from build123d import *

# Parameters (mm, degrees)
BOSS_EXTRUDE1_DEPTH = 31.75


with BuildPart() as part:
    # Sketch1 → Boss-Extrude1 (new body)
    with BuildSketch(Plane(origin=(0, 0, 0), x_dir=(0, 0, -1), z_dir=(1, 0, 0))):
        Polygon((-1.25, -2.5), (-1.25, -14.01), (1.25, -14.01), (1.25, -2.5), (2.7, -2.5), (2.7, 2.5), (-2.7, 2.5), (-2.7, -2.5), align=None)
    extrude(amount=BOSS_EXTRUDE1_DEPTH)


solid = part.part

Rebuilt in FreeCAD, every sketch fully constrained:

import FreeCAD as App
import Part
import Sketcher

V = App.Vector

doc = App.newDocument("Part")
params = doc.addObject("Spreadsheet::Sheet", "Params")
for row, (alias, value) in enumerate([
    ("sketch1_width", "5 mm"),
    ("sketch1_height", "2.5 mm"),
    ("sketch1_height2", "5.4 mm"),
    ("sketch1_width2", "11.51 mm"),
    ("pad1_length", "31.75 mm"),
], start=1):
    params.set(f"A{row}", alias)
    params.set(f"B{row}", "=" + value)
    params.setAlias(f"B{row}", alias)

body = doc.addObject("PartDesign::Body", "Body")

sketch1 = body.newObject("Sketcher::SketchObject", "Sketch")
sketch1.AttachmentSupport = (doc.getObject("YZ_Plane"), [""])
sketch1.MapMode = "FlatFace"
sketch1.addGeometry([
    Part.LineSegment(V(-2.5, 1.2, 0), V(-14, 1.2, 0)),
    Part.LineSegment(V(-14, 1.2, 0), V(-14, -1.2, 0)),
    Part.LineSegment(V(-14, -1.2, 0), V(-2.5, -1.2, 0)),
    Part.LineSegment(V(-2.5, -1.2, 0), V(-2.5, -2.7, 0)),
    Part.LineSegment(V(-2.5, -2.7, 0), V(2.5, -2.7, 0)),
    Part.LineSegment(V(2.5, -2.7, 0), V(2.5, 2.7, 0)),
    Part.LineSegment(V(2.5, 2.7, 0), V(-2.5, 2.7, 0)),
    Part.LineSegment(V(-2.5, 2.7, 0), V(-2.5, 1.2, 0)),
], False)
sketch1.addConstraint([
    Sketcher.Constraint("Coincident", 0, 2, 1, 1),
    Sketcher.Constraint("Coincident", 1, 2, 2, 1),
    Sketcher.Constraint("Coincident", 2, 2, 3, 1),
    Sketcher.Constraint("Coincident", 3, 2, 4, 1),
    Sketcher.Constraint("Coincident", 4, 2, 5, 1),
    Sketcher.Constraint("Coincident", 5, 2, 6, 1),
    Sketcher.Constraint("Coincident", 6, 2, 7, 1),
    Sketcher.Constraint("Coincident", 7, 2, 0, 1),
    Sketcher.Constraint("Horizontal", 0),
    Sketcher.Constraint("Vertical", 1),
    Sketcher.Constraint("Horizontal", 2),
    Sketcher.Constraint("Vertical", 3),
    Sketcher.Constraint("Horizontal", 4),
    Sketcher.Constraint("Vertical", 5),
    Sketcher.Constraint("Horizontal", 6),
    Sketcher.Constraint("Vertical", 7),
    Sketcher.Constraint("Symmetric", 3, 2, 5, 2, -1, 1),
    Sketcher.Constraint("Symmetric", 2, 2, 7, 2, -1),
    Sketcher.Constraint("DistanceX", 4, 1, 4, 2, 5.0),
    Sketcher.Constraint("DistanceY", 1, 2, 1, 1, 2.5),
    Sketcher.Constraint("DistanceY", 5, 1, 5, 2, 5.4),
    Sketcher.Constraint("DistanceX", 0, 2, 0, 1, 11.51),
])
sketch1.setExpression("Constraints[18]", "Params.sketch1_width")
sketch1.setExpression("Constraints[19]", "Params.sketch1_height")
sketch1.setExpression("Constraints[20]", "Params.sketch1_height2")
sketch1.setExpression("Constraints[21]", "Params.sketch1_width2")
pad1 = body.newObject("PartDesign::Pad", "Pad")
pad1.Profile = sketch1
pad1.setExpression("Length", "Params.pad1_length")

doc.recompute()
